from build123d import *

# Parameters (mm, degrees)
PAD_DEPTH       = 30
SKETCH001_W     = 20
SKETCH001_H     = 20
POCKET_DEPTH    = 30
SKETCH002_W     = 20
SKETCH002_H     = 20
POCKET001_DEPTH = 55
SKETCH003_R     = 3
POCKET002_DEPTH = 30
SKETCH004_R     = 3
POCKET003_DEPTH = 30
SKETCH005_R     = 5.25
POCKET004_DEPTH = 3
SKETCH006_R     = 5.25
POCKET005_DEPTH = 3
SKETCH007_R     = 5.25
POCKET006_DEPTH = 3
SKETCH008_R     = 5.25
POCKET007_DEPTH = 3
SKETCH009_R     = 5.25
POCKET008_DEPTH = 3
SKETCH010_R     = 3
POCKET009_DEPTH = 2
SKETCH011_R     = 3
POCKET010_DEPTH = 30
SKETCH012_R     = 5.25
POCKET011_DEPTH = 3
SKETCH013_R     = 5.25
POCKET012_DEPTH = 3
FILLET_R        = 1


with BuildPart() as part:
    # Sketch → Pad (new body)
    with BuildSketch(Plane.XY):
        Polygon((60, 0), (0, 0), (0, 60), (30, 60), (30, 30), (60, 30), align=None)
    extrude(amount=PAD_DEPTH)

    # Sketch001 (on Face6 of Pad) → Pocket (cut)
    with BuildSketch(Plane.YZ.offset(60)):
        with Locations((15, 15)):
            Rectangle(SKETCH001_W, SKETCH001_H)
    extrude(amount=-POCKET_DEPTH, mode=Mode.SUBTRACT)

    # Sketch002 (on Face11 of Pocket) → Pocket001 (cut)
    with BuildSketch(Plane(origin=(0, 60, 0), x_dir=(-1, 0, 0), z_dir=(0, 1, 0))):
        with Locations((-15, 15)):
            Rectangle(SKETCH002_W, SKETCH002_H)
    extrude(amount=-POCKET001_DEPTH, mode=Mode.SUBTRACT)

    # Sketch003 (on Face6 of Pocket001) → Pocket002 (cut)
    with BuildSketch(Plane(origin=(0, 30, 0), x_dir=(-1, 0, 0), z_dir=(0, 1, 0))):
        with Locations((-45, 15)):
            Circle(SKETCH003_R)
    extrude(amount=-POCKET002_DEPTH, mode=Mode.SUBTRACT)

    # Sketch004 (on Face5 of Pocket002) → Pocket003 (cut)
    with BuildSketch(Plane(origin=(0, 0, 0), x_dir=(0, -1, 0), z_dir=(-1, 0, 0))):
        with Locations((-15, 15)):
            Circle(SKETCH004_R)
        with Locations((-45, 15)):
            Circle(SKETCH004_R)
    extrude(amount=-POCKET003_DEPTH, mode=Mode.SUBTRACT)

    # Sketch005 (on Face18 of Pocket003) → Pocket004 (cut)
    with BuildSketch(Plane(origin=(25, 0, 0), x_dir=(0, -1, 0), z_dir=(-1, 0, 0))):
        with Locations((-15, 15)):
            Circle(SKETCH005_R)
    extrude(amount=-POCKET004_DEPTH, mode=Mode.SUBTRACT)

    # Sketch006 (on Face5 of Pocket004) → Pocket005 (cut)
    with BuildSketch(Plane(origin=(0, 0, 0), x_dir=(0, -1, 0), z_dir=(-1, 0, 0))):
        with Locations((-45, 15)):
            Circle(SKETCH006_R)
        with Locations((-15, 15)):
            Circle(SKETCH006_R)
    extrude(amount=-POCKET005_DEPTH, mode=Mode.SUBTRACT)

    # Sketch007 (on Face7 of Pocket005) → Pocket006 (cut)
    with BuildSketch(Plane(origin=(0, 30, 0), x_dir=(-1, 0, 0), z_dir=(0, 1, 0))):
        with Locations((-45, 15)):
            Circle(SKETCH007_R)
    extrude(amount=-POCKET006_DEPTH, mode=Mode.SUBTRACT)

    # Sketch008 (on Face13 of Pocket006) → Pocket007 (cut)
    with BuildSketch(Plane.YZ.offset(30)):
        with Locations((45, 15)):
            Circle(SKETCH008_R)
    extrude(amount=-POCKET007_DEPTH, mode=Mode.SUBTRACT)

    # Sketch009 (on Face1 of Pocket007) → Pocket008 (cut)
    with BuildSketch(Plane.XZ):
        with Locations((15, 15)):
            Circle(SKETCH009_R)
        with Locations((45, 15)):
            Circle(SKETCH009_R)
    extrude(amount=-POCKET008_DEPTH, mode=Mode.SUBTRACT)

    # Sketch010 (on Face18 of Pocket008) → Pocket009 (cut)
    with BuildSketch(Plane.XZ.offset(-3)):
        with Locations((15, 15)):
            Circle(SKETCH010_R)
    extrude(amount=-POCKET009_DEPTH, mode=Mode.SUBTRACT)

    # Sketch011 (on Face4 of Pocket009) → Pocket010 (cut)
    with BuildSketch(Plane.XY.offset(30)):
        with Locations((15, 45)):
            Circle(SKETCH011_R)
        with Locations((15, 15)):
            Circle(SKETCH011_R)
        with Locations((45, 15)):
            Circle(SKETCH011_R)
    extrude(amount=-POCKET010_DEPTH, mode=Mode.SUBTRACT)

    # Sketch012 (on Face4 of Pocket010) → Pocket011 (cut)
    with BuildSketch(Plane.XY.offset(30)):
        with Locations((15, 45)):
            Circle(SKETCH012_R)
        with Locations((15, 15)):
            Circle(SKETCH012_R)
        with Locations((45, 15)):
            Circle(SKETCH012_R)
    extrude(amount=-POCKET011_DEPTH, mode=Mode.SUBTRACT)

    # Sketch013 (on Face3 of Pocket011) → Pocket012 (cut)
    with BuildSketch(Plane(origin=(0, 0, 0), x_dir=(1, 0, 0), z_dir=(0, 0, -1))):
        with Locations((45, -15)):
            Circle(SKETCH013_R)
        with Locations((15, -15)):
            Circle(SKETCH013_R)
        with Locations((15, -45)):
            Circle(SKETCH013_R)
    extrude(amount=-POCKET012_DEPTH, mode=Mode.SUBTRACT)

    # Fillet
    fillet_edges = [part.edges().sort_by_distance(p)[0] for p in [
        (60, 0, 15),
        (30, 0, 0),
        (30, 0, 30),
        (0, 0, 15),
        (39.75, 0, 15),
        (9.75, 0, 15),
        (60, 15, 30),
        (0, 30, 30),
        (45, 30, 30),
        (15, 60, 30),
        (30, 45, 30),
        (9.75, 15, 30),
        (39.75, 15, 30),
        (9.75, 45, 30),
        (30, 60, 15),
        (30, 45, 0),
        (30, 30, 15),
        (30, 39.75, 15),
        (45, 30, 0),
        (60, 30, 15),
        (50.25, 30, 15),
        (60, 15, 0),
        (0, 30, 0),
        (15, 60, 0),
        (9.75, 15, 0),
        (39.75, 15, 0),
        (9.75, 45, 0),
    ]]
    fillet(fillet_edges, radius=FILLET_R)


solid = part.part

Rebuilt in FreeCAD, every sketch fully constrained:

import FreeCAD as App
import Part
import Sketcher
Q = App.Units.Quantity


def edges_at(feature, points):
    """Names of the edges that pass closest to the given points."""
    edges = feature.Shape.Edges
    near = lambda p: min(range(len(edges)), key=lambda i: edges[i].distToShape(Part.Vertex(*p))[0])
    return sorted({f"Edge{near(p) + 1}" for p in points})

doc = App.newDocument("Part")
body = doc.addObject("PartDesign::Body", "Body")

sketch1 = body.newObject("Sketcher::SketchObject", "Sketch")
sketch1.AttachmentSupport = (doc.getObject("XY_Plane"), [""])
sketch1.MapMode = "FlatFace"
sketch1.addGeometry([
    Part.LineSegment(App.Vector(0, 0, 0), App.Vector(60, 0, 0)),
    Part.LineSegment(App.Vector(60, 0, 0), App.Vector(60, 30, 0)),
    Part.LineSegment(App.Vector(60, 30, 0), App.Vector(30, 30, 0)),
    Part.LineSegment(App.Vector(30, 30, 0), App.Vector(30, 60, 0)),
    Part.LineSegment(App.Vector(30, 60, 0), App.Vector(0, 60, 0)),
    Part.LineSegment(App.Vector(0, 60, 0), App.Vector(0, 0, 0)),
], False)
sketch1.addConstraint([
    Sketcher.Constraint("Coincident", 0, 2, 1, 1),
    Sketcher.Constraint("Coincident", 1, 2, 2, 1),
    Sketcher.Constraint("Coincident", 2, 2, 3, 1),
    Sketcher.Constraint("Coincident", 3, 2, 4, 1),
    Sketcher.Constraint("Coincident", 4, 2, 5, 1),
    Sketcher.Constraint("Coincident", 5, 2, 0, 1),
    Sketcher.Constraint("Horizontal", 0),
    Sketcher.Constraint("Vertical", 1),
    Sketcher.Constraint("Horizontal", 2),
    Sketcher.Constraint("Vertical", 3),
    Sketcher.Constraint("Horizontal", 4),
    Sketcher.Constraint("Vertical", 5),
    Sketcher.Constraint("Coincident", 5, 2, -1, 1),
    Sketcher.Constraint("Equal", 2, 4),
    Sketcher.Constraint("Equal", 4, 1),
    Sketcher.Constraint("Equal", 1, 3),
    Sketcher.Constraint("DistanceX", 0, 1, 0, 2, Q("60 mm")),
])
pad1 = body.newObject("PartDesign::Pad", "Pad")
pad1.Profile = sketch1
pad1.Length = 30

sketch2 = body.newObject("Sketcher::SketchObject", "Sketch001")
sketch2.AttachmentSupport = (doc.getObject("YZ_Plane"), [""])
sketch2.MapMode = "FlatFace"
sketch2.AttachmentOffset = App.Placement(App.Vector(0, 0, 60), App.Rotation())
sketch2.addGeometry([
    Part.LineSegment(App.Vector(5, 25, 0), App.Vector(5, 5, 0)),
    Part.LineSegment(App.Vector(5, 5, 0), App.Vector(25, 5, 0)),
    Part.LineSegment(App.Vector(25, 5, 0), App.Vector(25, 25, 0)),
    Part.LineSegment(App.Vector(25, 25, 0), App.Vector(5, 25, 0)),
], False)
sketch2.addConstraint([
    Sketcher.Constraint("Coincident", 0, 2, 1, 1),
    Sketcher.Constraint("Coincident", 1, 2, 2, 1),
    Sketcher.Constraint("Coincident", 2, 2, 3, 1),
    Sketcher.Constraint("Coincident", 3, 2, 0, 1),
    Sketcher.Constraint("Vertical", 0),
    Sketcher.Constraint("Horizontal", 1),
    Sketcher.Constraint("Vertical", 2),
    Sketcher.Constraint("Horizontal", 3),
    Sketcher.Constraint("Equal", 3, 0),
    Sketcher.Constraint("DistanceX", 1, 1, 1, 2, Q("20 mm")),
    Sketcher.Constraint("DistanceX", -1, 1, 0, 2, Q("5 mm")),
    Sketcher.Constraint("DistanceY", -1, 1, 0, 2, Q("5 mm")),
])
pocket1 = body.newObject("PartDesign::Pocket", "Pocket")
pocket1.Profile = sketch2
pocket1.Length = 30

sketch3 = body.newObject("Sketcher::SketchObject", "Sketch002")
sketch3.AttachmentSupport = (doc.getObject("XZ_Plane"), [""])
sketch3.MapMode = "FlatFace"
sketch3.AttachmentOffset = App.Placement(App.Vector(0, 0, -60), App.Rotation())
sketch3.addGeometry([
    Part.LineSegment(App.Vector(25, 25, 0), App.Vector(25, 5, 0)),
    Part.LineSegment(App.Vector(25, 5, 0), App.Vector(5, 5, 0)),
    Part.LineSegment(App.Vector(5, 5, 0), App.Vector(5, 25, 0)),
    Part.LineSegment(App.Vector(5, 25, 0), App.Vector(25, 25, 0)),
], False)
sketch3.addConstraint([
    Sketcher.Constraint("Coincident", 0, 2, 1, 1),
    Sketcher.Constraint("Coincident", 1, 2, 2, 1),
    Sketcher.Constraint("Coincident", 2, 2, 3, 1),
    Sketcher.Constraint("Coincident", 3, 2, 0, 1),
    Sketcher.Constraint("Vertical", 0),
    Sketcher.Constraint("Horizontal", 1),
    Sketcher.Constraint("Vertical", 2),
    Sketcher.Constraint("Horizontal", 3),
    Sketcher.Constraint("Equal", 3, 0),
    Sketcher.Constraint("DistanceX", 1, 2, 1, 1, Q("20 mm")),
    Sketcher.Constraint("DistanceX", -1, 1, 0, 2, Q("25 mm")),
    Sketcher.Constraint("DistanceY", -1, 1, 0, 2, Q("5 mm")),
])
pocket2 = body.newObject("PartDesign::Pocket", "Pocket001")
pocket2.Profile = sketch3
pocket2.Length = 55
pocket2.Reversed = True

sketch4 = body.newObject("Sketcher::SketchObject", "Sketch003")
sketch4.AttachmentSupport = (doc.getObject("XZ_Plane"), [""])
sketch4.MapMode = "FlatFace"
sketch4.AttachmentOffset = App.Placement(App.Vector(0, 0, -30), App.Rotation())
sketch4.addGeometry(Part.Circle(App.Vector(45, 15, 0), App.Vector(0, 0, 1), 3), False)
sketch4.addConstraint([
    Sketcher.Constraint("Diameter", 0, Q("6 mm")),
    Sketcher.Constraint("DistanceX", -1, 1, 0, 3, Q("45 mm")),
    Sketcher.Constraint("DistanceY", -1, 1, 0, 3, Q("15 mm")),
])
pocket3 = body.newObject("PartDesign::Pocket", "Pocket002")
pocket3.Profile = sketch4
pocket3.Length = 30
pocket3.Reversed = True

sketch5 = body.newObject("Sketcher::SketchObject", "Sketch004")
sketch5.AttachmentSupport = (doc.getObject("YZ_Plane"), [""])
sketch5.MapMode = "FlatFace"
sketch5.addGeometry([
    Part.Circle(App.Vector(15, 15, 0), App.Vector(0, 0, 1), 3),
    Part.Circle(App.Vector(45, 15, 0), App.Vector(0, 0, 1), 3),
], False)
sketch5.addConstraint([
    Sketcher.Constraint("Equal", 0, 1),
    Sketcher.Constraint("Horizontal", 0, 3, 1, 3),
    Sketcher.Constraint("Diameter", 0, Q("6 mm")),
    Sketcher.Constraint("DistanceX", -1, 1, 0, 3, Q("15 mm")),
    Sketcher.Constraint("DistanceY", -1, 1, 0, 3, Q("15 mm")),
    Sketcher.Constraint("DistanceX", -1, 1, 1, 3, Q("45 mm")),
])
pocket4 = body.newObject("PartDesign::Pocket", "Pocket003")
pocket4.Profile = sketch5
pocket4.Length = 30
pocket4.Reversed = True

sketch6 = body.newObject("Sketcher::SketchObject", "Sketch005")
sketch6.AttachmentSupport = (doc.getObject("YZ_Plane"), [""])
sketch6.MapMode = "FlatFace"
sketch6.AttachmentOffset = App.Placement(App.Vector(0, 0, 25), App.Rotation())
sketch6.addGeometry(Part.Circle(App.Vector(15, 15, 0), App.Vector(0, 0, 1), 5), False)
sketch6.addConstraint([
    Sketcher.Constraint("Diameter", 0, Q("10.5 mm")),
    Sketcher.Constraint("DistanceX", -1, 1, 0, 3, Q("15 mm")),
    Sketcher.Constraint("DistanceY", -1, 1, 0, 3, Q("15 mm")),
])
pocket5 = body.newObject("PartDesign::Pocket", "Pocket004")
pocket5.Profile = sketch6
pocket5.Length = 3
pocket5.Reversed = True

sketch7 = body.newObject("Sketcher::SketchObject", "Sketch006")
sketch7.AttachmentSupport = (doc.getObject("YZ_Plane"), [""])
sketch7.MapMode = "FlatFace"
sketch7.addGeometry([
    Part.Circle(App.Vector(45, 15, 0), App.Vector(0, 0, 1), 5),
    Part.Circle(App.Vector(15, 15, 0), App.Vector(0, 0, 1), 5),
], False)
sketch7.addConstraint([
    Sketcher.Constraint("Equal", 0, 1),
    Sketcher.Constraint("Horizontal", 0, 3, 1, 3),
    Sketcher.Constraint("Diameter", 0, Q("10.5 mm")),
    Sketcher.Constraint("DistanceX", -1, 1, 0, 3, Q("45 mm")),
    Sketcher.Constraint("DistanceY", -1, 1, 0, 3, Q("15 mm")),
    Sketcher.Constraint("DistanceX", -1, 1, 1, 3, Q("15 mm")),
])
pocket6 = body.newObject("PartDesign::Pocket", "Pocket005")
pocket6.Profile = sketch7
pocket6.Length = 3
pocket6.Reversed = True

sketch8 = body.newObject("Sketcher::SketchObject", "Sketch007")
sketch8.AttachmentSupport = (doc.getObject("XZ_Plane"), [""])
sketch8.MapMode = "FlatFace"
sketch8.AttachmentOffset = App.Placement(App.Vector(0, 0, -30), App.Rotation())
sketch8.addGeometry(Part.Circle(App.Vector(45, 15, 0), App.Vector(0, 0, 1), 5), False)
sketch8.addConstraint([
    Sketcher.Constraint("Diameter", 0, Q("10.5 mm")),
    Sketcher.Constraint("DistanceX", -1, 1, 0, 3, Q("45 mm")),
    Sketcher.Constraint("DistanceY", -1, 1, 0, 3, Q("15 mm")),
])
pocket7 = body.newObject("PartDesign::Pocket", "Pocket006")
pocket7.Profile = sketch8
pocket7.Length = 3
pocket7.Reversed = True

sketch9 = body.newObject("Sketcher::SketchObject", "Sketch008")
sketch9.AttachmentSupport = (doc.getObject("YZ_Plane"), [""])
sketch9.MapMode = "FlatFace"
sketch9.AttachmentOffset = App.Placement(App.Vector(0, 0, 30), App.Rotation())
sketch9.addGeometry(Part.Circle(App.Vector(45, 15, 0), App.Vector(0, 0, 1), 5), False)
sketch9.addConstraint([
    Sketcher.Constraint("Diameter", 0, Q("10.5 mm")),
    Sketcher.Constraint("DistanceX", -1, 1, 0, 3, Q("45 mm")),
    Sketcher.Constraint("DistanceY", -1, 1, 0, 3, Q("15 mm")),
])
pocket8 = body.newObject("PartDesign::Pocket", "Pocket007")
pocket8.Profile = sketch9
pocket8.Length = 3

sketch10 = body.newObject("Sketcher::SketchObject", "Sketch009")
sketch10.AttachmentSupport = (doc.getObject("XZ_Plane"), [""])
sketch10.MapMode = "FlatFace"
sketch10.addGeometry([
    Part.Circle(App.Vector(15, 15, 0), App.Vector(0, 0, 1), 5),
    Part.Circle(App.Vector(45, 15, 0), App.Vector(0, 0, 1), 5),
], False)
sketch10.addConstraint([
    Sketcher.Constraint("Equal", 0, 1),
    Sketcher.Constraint("Horizontal", 0, 3, 1, 3),
    Sketcher.Constraint("Diameter", 0, Q("10.5 mm")),
    Sketcher.Constraint("DistanceX", -1, 1, 0, 3, Q("15 mm")),
    Sketcher.Constraint("DistanceY", -1, 1, 0, 3, Q("15 mm")),
    Sketcher.Constraint("DistanceX", -1, 1, 1, 3, Q("45 mm")),
])
pocket9 = body.newObject("PartDesign::Pocket", "Pocket008")
pocket9.Profile = sketch10
pocket9.Length = 3

sketch11 = body.newObject("Sketcher::SketchObject", "Sketch010")
sketch11.AttachmentSupport = (doc.getObject("XZ_Plane"), [""])
sketch11.MapMode = "FlatFace"
sketch11.AttachmentOffset = App.Placement(App.Vector(0, 0, -3), App.Rotation())
sketch11.addGeometry(Part.Circle(App.Vector(15, 15, 0), App.Vector(0, 0, 1), 3), False)
sketch11.addConstraint([
    Sketcher.Constraint("Diameter", 0, Q("6 mm")),
    Sketcher.Constraint("DistanceX", -1, 1, 0, 3, Q("15 mm")),
    Sketcher.Constraint("DistanceY", -1, 1, 0, 3, Q("15 mm")),
])
pocket10 = body.newObject("PartDesign::Pocket", "Pocket009")
pocket10.Profile = sketch11
pocket10.Length = 2

sketch12 = body.newObject("Sketcher::SketchObject", "Sketch011")
sketch12.AttachmentSupport = (doc.getObject("XY_Plane"), [""])
sketch12.MapMode = "FlatFace"
sketch12.AttachmentOffset = App.Placement(App.Vector(0, 0, 30), App.Rotation())
sketch12.addGeometry([
    Part.Circle(App.Vector(15, 45, 0), App.Vector(0, 0, 1), 3),
    Part.Circle(App.Vector(15, 15, 0), App.Vector(0, 0, 1), 3),
    Part.Circle(App.Vector(45, 15, 0), App.Vector(0, 0, 1), 3),
], False)
sketch12.addConstraint([
    Sketcher.Constraint("Equal", 0, 1),
    Sketcher.Constraint("Equal", 1, 2),
    Sketcher.Constraint("Horizontal", 1, 3, 2, 3),
    Sketcher.Constraint("Vertical", 0, 3, 1, 3),
    Sketcher.Constraint("Diameter", 0, Q("6 mm")),
    Sketcher.Constraint("DistanceX", -1, 1, 0, 3, Q("15 mm")),
    Sketcher.Constraint("DistanceY", -1, 1, 0, 3, Q("45 mm")),
    Sketcher.Constraint("DistanceY", -1, 1, 1, 3, Q("15 mm")),
    Sketcher.Constraint("DistanceX", -1, 1, 2, 3, Q("45 mm")),
])
pocket11 = body.newObject("PartDesign::Pocket", "Pocket010")
pocket11.Profile = sketch12
pocket11.Length = 30

sketch13 = body.newObject("Sketcher::SketchObject", "Sketch012")
sketch13.AttachmentSupport = (doc.getObject("XY_Plane"), [""])
sketch13.MapMode = "FlatFace"
sketch13.AttachmentOffset = App.Placement(App.Vector(0, 0, 30), App.Rotation())
sketch13.addGeometry([
    Part.Circle(App.Vector(15, 45, 0), App.Vector(0, 0, 1), 5),
    Part.Circle(App.Vector(15, 15, 0), App.Vector(0, 0, 1), 5),
    Part.Circle(App.Vector(45, 15, 0), App.Vector(0, 0, 1), 5),
], False)
sketch13.addConstraint([
    Sketcher.Constraint("Equal", 0, 1),
    Sketcher.Constraint("Equal", 1, 2),
    Sketcher.Constraint("Horizontal", 1, 3, 2, 3),
    Sketcher.Constraint("Vertical", 0, 3, 1, 3),
    Sketcher.Constraint("Diameter", 0, Q("10.5 mm")),
    Sketcher.Constraint("DistanceX", -1, 1, 0, 3, Q("15 mm")),
    Sketcher.Constraint("DistanceY", -1, 1, 0, 3, Q("45 mm")),
    Sketcher.Constraint("DistanceY", -1, 1, 1, 3, Q("15 mm")),
    Sketcher.Constraint("DistanceX", -1, 1, 2, 3, Q("45 mm")),
])
pocket12 = body.newObject("PartDesign::Pocket", "Pocket011")
pocket12.Profile = sketch13
pocket12.Length = 3

sketch14 = body.newObject("Sketcher::SketchObject", "Sketch013")
sketch14.AttachmentSupport = (doc.getObject("XY_Plane"), [""])
sketch14.MapMode = "FlatFace"
sketch14.addGeometry([
    Part.Circle(App.Vector(45, 15, 0), App.Vector(0, 0, 1), 5),
    Part.Circle(App.Vector(15, 15, 0), App.Vector(0, 0, 1), 5),
    Part.Circle(App.Vector(15, 45, 0), App.Vector(0, 0, 1), 5),
], False)
sketch14.addConstraint([
    Sketcher.Constraint("Equal", 0, 1),
    Sketcher.Constraint("Equal", 1, 2),
    Sketcher.Constraint("Horizontal", 0, 3, 1, 3),
    Sketcher.Constraint("Vertical", 1, 3, 2, 3),
    Sketcher.Constraint("Diameter", 0, Q("10.5 mm")),
    Sketcher.Constraint("DistanceX", -1, 1, 0, 3, Q("45 mm")),
    Sketcher.Constraint("DistanceY", -1, 1, 0, 3, Q("15 mm")),
    Sketcher.Constraint("DistanceX", -1, 1, 1, 3, Q("15 mm")),
    Sketcher.Constraint("DistanceY", -1, 1, 2, 3, Q("45 mm")),
])
pocket13 = body.newObject("PartDesign::Pocket", "Pocket012")
pocket13.Profile = sketch14
pocket13.Length = 3
pocket13.Reversed = True
doc.recompute()

fillet = body.newObject("PartDesign::Fillet", "Fillet")
fillet.Base = (pocket13, edges_at(pocket13, [
    (60, 0, 15),
    (30, 0, 0),
    (30, 0, 30),
    (0, 0, 15),
    (39.75, 0, 15),
    (9.75, 0, 15),
    (60, 15, 30),
    (0, 30, 30),
    (45, 30, 30),
    (15, 60, 30),
    (30, 45, 30),
    (9.75, 15, 30),
    (39.75, 15, 30),
    (9.75, 45, 30),
    (30, 60, 15),
    (30, 45, 0),
    (30, 30, 15),
    (30, 39.75, 15),
    (45, 30, 0),
    (60, 30, 15),
    (50.25, 30, 15),
    (60, 15, 0),
    (0, 30, 0),
    (15, 60, 0),
    (9.75, 15, 0),
    (39.75, 15, 0),
    (9.75, 45, 0),
]))
fillet.Radius = 1

doc.recompute()
